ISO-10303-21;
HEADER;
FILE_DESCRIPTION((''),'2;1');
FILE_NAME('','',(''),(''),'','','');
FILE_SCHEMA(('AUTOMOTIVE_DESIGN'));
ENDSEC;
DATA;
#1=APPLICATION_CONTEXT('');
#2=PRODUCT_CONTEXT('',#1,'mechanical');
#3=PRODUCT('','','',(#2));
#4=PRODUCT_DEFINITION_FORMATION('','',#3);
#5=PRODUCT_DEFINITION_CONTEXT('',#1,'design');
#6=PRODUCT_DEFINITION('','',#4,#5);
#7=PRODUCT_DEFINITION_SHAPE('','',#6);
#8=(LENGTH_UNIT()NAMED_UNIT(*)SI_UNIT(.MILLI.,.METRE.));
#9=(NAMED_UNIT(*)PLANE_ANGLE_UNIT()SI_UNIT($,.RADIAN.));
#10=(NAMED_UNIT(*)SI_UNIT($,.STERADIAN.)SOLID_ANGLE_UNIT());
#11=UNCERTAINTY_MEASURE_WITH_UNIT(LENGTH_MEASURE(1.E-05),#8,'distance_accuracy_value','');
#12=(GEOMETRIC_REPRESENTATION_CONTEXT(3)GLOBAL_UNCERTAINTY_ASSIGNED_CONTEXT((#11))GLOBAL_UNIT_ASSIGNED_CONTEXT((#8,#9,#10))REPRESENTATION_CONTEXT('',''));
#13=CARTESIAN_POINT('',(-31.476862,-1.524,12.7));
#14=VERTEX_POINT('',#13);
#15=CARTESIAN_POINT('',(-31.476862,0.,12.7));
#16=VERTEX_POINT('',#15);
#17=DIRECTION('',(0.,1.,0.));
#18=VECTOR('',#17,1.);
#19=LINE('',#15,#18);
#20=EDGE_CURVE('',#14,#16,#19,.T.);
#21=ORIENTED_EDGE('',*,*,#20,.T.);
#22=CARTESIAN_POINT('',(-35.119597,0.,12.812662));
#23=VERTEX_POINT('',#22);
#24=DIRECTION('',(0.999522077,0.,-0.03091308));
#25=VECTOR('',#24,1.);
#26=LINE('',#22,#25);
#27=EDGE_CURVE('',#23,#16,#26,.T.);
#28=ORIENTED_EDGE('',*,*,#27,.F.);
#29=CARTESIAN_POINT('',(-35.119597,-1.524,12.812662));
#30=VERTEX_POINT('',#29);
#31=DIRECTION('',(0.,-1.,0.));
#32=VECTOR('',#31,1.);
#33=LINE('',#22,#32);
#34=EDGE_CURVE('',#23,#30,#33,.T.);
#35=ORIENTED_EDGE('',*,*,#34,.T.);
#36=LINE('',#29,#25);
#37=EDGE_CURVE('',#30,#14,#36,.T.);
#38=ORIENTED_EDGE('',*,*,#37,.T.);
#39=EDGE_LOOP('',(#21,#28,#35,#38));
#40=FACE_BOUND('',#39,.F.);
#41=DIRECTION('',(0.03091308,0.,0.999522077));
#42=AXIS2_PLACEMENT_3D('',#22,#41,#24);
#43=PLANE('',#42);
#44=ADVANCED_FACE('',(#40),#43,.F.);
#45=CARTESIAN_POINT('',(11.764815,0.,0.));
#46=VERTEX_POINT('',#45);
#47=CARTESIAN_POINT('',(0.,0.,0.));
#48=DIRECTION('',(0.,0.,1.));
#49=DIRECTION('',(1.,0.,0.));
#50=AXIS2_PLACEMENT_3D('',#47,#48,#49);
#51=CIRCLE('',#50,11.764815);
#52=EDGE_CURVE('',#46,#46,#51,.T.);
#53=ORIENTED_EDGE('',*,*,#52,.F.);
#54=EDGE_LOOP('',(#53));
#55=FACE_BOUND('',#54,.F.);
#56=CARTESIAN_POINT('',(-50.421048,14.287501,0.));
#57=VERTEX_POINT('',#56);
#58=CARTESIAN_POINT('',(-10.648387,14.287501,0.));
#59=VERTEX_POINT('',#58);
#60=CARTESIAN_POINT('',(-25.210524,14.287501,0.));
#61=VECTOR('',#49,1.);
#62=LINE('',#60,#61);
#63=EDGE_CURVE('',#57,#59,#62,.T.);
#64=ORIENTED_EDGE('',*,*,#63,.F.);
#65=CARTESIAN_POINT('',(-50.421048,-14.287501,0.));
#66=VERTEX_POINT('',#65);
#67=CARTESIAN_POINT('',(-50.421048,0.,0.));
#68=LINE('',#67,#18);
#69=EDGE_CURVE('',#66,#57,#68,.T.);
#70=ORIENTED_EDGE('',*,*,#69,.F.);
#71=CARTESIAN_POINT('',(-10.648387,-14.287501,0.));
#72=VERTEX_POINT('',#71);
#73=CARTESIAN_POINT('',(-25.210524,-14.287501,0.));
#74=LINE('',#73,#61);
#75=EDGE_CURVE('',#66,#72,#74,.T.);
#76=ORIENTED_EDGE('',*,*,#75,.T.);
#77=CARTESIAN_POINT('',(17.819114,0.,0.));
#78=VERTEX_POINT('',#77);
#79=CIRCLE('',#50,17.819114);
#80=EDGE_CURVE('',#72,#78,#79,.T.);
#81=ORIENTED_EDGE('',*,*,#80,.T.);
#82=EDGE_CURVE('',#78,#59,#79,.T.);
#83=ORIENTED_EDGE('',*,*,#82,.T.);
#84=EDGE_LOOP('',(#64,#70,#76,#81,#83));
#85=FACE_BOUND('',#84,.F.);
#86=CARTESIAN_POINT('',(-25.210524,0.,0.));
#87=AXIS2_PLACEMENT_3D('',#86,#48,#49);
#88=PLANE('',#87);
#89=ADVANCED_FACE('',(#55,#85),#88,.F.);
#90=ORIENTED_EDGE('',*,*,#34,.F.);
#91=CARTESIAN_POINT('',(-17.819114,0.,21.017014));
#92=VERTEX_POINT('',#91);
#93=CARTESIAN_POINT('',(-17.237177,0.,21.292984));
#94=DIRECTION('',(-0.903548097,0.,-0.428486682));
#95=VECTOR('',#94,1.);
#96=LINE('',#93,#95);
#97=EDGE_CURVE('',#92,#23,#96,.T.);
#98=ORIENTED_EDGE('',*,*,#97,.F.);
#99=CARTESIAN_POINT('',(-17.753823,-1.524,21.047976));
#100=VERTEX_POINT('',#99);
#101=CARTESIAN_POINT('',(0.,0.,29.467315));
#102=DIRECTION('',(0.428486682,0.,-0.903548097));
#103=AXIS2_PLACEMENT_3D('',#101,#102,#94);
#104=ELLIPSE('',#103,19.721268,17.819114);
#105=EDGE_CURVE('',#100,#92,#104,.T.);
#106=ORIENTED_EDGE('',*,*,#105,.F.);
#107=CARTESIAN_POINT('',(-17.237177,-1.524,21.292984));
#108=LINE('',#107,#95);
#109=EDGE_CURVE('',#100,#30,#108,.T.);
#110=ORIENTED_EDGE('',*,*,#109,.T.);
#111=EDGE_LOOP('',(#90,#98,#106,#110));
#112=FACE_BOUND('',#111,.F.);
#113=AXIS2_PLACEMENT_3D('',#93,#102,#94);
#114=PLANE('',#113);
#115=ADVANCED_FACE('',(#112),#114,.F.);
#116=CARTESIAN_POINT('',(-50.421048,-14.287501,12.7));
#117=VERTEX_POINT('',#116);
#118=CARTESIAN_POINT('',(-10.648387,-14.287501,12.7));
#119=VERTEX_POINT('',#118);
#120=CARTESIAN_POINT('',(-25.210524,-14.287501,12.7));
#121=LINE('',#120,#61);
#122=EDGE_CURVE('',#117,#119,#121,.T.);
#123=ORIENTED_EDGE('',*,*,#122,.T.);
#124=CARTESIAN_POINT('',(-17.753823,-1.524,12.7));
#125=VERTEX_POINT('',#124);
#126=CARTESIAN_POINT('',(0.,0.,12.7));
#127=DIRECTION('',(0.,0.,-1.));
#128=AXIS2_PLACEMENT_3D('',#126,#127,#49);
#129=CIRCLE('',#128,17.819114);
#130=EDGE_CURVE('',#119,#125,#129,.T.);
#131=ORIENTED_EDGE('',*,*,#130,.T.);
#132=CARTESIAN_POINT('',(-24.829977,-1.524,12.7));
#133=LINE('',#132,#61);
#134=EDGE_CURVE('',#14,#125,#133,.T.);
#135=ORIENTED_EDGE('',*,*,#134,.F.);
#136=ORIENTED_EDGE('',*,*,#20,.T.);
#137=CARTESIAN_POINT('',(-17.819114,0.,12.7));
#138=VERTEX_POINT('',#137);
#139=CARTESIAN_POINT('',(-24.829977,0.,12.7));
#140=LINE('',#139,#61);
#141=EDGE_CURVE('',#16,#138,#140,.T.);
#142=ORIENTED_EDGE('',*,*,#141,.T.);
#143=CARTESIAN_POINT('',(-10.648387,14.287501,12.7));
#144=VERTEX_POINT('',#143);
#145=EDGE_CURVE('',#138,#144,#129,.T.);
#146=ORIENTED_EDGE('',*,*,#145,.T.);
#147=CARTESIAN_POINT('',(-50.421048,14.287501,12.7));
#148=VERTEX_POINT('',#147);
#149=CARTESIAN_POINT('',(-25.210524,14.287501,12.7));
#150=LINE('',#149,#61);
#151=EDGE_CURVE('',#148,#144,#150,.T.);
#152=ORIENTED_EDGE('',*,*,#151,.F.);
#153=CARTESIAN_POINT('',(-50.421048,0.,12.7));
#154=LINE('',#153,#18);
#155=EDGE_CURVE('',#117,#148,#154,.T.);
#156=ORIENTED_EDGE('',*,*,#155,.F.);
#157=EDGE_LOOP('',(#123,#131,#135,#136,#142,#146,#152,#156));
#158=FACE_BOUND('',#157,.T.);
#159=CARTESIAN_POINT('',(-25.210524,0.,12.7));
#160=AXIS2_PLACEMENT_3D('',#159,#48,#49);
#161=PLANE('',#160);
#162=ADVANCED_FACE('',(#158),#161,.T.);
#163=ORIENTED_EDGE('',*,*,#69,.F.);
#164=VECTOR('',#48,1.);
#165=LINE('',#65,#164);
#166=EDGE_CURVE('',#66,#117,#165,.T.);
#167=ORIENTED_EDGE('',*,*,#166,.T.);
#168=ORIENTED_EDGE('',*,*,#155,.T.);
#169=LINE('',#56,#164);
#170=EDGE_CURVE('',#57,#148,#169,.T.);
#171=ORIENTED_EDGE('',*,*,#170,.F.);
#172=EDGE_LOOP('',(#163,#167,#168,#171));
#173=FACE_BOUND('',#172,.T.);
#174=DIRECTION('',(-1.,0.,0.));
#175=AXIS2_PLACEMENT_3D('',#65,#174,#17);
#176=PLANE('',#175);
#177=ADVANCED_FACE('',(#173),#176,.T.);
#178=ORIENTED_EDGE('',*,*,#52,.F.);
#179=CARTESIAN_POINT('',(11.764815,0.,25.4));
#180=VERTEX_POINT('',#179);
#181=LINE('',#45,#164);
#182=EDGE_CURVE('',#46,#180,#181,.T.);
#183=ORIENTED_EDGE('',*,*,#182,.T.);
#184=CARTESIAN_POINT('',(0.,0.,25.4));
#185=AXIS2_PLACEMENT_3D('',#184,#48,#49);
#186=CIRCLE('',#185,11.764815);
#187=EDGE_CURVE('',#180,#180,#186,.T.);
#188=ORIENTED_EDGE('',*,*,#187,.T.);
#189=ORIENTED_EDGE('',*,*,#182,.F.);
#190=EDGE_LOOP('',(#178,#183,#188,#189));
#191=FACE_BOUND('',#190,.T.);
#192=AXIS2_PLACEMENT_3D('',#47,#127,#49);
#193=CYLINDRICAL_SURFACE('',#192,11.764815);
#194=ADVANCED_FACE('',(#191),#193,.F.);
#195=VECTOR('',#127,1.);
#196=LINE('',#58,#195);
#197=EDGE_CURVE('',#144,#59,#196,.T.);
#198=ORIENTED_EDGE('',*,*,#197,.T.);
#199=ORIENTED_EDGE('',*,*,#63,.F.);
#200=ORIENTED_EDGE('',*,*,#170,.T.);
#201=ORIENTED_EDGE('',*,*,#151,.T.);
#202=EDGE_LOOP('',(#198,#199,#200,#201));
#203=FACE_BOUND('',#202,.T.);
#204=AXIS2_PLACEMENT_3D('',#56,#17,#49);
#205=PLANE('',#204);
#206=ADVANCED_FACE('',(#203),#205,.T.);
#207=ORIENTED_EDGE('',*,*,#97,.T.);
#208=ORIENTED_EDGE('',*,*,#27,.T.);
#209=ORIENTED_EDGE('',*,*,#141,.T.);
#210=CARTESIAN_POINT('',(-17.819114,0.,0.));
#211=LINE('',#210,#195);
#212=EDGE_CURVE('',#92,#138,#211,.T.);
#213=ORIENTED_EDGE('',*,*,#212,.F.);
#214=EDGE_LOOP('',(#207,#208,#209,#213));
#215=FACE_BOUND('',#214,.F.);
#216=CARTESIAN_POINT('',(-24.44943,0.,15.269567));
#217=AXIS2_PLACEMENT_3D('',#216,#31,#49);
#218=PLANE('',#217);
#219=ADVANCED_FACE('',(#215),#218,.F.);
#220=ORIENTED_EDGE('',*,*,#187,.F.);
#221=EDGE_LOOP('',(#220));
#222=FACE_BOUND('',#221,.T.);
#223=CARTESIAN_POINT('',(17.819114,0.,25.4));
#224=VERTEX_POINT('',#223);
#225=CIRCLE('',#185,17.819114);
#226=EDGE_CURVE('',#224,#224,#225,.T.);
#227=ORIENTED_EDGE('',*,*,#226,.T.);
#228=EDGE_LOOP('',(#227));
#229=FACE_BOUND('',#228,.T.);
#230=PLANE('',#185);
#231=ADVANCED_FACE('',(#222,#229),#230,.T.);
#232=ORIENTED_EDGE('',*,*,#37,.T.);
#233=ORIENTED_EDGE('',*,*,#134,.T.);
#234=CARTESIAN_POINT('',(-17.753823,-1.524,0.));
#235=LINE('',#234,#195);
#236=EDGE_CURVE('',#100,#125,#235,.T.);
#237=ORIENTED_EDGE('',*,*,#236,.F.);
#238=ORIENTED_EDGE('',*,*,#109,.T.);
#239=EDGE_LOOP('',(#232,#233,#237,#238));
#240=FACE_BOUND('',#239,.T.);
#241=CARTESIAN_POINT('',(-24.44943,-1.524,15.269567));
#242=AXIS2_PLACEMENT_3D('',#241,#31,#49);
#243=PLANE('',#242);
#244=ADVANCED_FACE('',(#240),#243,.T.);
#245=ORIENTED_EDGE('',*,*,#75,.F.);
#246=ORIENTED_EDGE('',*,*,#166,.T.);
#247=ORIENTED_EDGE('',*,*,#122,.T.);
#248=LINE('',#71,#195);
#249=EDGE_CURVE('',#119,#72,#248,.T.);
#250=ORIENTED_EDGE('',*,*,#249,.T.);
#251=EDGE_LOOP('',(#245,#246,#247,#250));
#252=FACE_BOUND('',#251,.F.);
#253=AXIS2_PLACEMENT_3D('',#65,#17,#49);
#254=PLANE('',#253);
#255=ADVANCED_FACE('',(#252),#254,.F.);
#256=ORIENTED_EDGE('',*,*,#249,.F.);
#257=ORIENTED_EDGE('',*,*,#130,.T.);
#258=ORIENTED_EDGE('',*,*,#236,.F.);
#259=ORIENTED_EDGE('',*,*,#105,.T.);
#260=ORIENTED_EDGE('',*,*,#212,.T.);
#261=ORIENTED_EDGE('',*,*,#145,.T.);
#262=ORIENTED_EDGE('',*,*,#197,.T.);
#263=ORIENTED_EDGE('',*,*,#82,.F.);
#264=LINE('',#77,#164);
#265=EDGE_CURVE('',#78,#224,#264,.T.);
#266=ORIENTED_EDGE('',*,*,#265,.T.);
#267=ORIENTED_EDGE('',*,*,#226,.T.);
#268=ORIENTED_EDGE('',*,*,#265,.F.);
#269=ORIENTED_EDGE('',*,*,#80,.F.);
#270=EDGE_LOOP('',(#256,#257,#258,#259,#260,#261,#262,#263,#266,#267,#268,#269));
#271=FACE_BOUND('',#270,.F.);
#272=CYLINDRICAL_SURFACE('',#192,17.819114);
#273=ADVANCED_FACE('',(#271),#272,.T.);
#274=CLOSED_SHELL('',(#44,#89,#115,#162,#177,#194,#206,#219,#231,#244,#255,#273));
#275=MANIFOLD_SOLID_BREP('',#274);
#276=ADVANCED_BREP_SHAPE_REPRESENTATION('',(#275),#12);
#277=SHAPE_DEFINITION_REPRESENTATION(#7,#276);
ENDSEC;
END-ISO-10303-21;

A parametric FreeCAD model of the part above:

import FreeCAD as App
import Part
import Sketcher

V = App.Vector
Q = App.Units.Quantity

doc = App.newDocument("Part")
body = doc.addObject("PartDesign::Body", "Body")

sketch1 = body.newObject("Sketcher::SketchObject", "Sketch")
sketch1.AttachmentSupport = (doc.getObject("XY_Plane"), [""])
sketch1.MapMode = "FlatFace"
sketch1.addGeometry(Part.Circle(V(0, 0, 0), V(0, 0, 1), 17.819114), False)
sketch1.addConstraint([
    Sketcher.Constraint("Coincident", 0, 3, -1, 1),
    Sketcher.Constraint("Diameter", 0, Q("35.638228 mm")),
])
pad1 = body.newObject("PartDesign::Pad", "Pad")
pad1.Profile = sketch1
pad1.Length = Q("1 in")

sketch2 = body.newObject("Sketcher::SketchObject", "Sketch001")
sketch2.AttachmentSupport = (doc.getObject("XY_Plane"), [""])
sketch2.MapMode = "FlatFace"
sketch2.addGeometry([
    Part.LineSegment(V(-50.421048, 14.287501, 0), V(-50.421048, -14.287501, 0)),
    Part.LineSegment(V(-50.421048, -14.287501, 0), V(0, -14.287501, 0)),
    Part.LineSegment(V(0, -14.287501, 0), V(0, 14.287501, 0)),
    Part.LineSegment(V(0, 14.287501, 0), V(-50.421048, 14.287501, 0)),
], False)
sketch2.addConstraint([
    Sketcher.Constraint("Coincident", 0, 2, 1, 1),
    Sketcher.Constraint("Coincident", 1, 2, 2, 1),
    Sketcher.Constraint("Coincident", 2, 2, 3, 1),
    Sketcher.Constraint("Coincident", 3, 2, 0, 1),
    Sketcher.Constraint("Vertical", 0),
    Sketcher.Constraint("Horizontal", 1),
    Sketcher.Constraint("Vertical", 2),
    Sketcher.Constraint("Horizontal", 3),
    Sketcher.Constraint("Symmetric", 1, 2, 2, 2, -1, 1),
    Sketcher.Constraint("DistanceY", 0, 2, 0, 1, Q("1.1250001 in")),
    Sketcher.Constraint("DistanceX", 1, 1, 1, 2, Q("50.421048 mm")),
])
pad2 = body.newObject("PartDesign::Pad", "Pad001")
pad2.Profile = sketch2
pad2.Length = Q("0.5 in")

sketch3 = body.newObject("Sketcher::SketchObject", "Sketch002")
sketch3.AttachmentSupport = (doc.getObject("XY_Plane"), [""])
sketch3.MapMode = "FlatFace"
sketch3.addGeometry(Part.Circle(V(0, 0, 0), V(0, 0, 1), 11.764815), False)
sketch3.addConstraint([
    Sketcher.Constraint("Coincident", 0, 3, -1, 1),
    Sketcher.Constraint("Diameter", 0, Q("23.52963 mm")),
])
pocket1 = body.newObject("PartDesign::Pocket", "Pocket")
pocket1.Profile = sketch3
pocket1.Length = Q("1 in")
pocket1.Reversed = True

sketch4 = body.newObject("Sketcher::SketchObject", "Sketch003")
sketch4.AttachmentSupport = (doc.getObject("XZ_Plane"), [""])
sketch4.MapMode = "FlatFace"
sketch4.addGeometry([
    Part.LineSegment(V(-17.237177, 21.292984, 0), V(-35.119597, 12.812662, 0)),
    Part.LineSegment(V(-35.119597, 12.812662, 0), V(-17.237177, 12.259597, 0)),
    Part.LineSegment(V(-17.237177, 12.259597, 0), V(-17.237177, 21.292984, 0)),
], False)
sketch4.addConstraint([
    Sketcher.Constraint("Coincident", 0, 2, 1, 1),
    Sketcher.Constraint("Coincident", 1, 2, 2, 1),
    Sketcher.Constraint("Coincident", 2, 2, 0, 1),
    Sketcher.Constraint("Vertical", 2),
    Sketcher.Constraint("Distance", 0, Q("19.791332 mm")),
    Sketcher.Constraint("Distance", 1, Q("17.890971 mm")),
    Sketcher.Constraint("DistanceY", 2, 1, 2, 2, Q("9.033387 mm")),
    Sketcher.Constraint("DistanceX", 0, 2, -1, 1, Q("35.119597 mm")),
    Sketcher.Constraint("DistanceY", -1, 1, 0, 2, Q("12.812662 mm")),
])
pad3 = body.newObject("PartDesign::Pad", "Pad002")
pad3.Profile = sketch4
pad3.Length = Q("0.06 in")

doc.recompute()
